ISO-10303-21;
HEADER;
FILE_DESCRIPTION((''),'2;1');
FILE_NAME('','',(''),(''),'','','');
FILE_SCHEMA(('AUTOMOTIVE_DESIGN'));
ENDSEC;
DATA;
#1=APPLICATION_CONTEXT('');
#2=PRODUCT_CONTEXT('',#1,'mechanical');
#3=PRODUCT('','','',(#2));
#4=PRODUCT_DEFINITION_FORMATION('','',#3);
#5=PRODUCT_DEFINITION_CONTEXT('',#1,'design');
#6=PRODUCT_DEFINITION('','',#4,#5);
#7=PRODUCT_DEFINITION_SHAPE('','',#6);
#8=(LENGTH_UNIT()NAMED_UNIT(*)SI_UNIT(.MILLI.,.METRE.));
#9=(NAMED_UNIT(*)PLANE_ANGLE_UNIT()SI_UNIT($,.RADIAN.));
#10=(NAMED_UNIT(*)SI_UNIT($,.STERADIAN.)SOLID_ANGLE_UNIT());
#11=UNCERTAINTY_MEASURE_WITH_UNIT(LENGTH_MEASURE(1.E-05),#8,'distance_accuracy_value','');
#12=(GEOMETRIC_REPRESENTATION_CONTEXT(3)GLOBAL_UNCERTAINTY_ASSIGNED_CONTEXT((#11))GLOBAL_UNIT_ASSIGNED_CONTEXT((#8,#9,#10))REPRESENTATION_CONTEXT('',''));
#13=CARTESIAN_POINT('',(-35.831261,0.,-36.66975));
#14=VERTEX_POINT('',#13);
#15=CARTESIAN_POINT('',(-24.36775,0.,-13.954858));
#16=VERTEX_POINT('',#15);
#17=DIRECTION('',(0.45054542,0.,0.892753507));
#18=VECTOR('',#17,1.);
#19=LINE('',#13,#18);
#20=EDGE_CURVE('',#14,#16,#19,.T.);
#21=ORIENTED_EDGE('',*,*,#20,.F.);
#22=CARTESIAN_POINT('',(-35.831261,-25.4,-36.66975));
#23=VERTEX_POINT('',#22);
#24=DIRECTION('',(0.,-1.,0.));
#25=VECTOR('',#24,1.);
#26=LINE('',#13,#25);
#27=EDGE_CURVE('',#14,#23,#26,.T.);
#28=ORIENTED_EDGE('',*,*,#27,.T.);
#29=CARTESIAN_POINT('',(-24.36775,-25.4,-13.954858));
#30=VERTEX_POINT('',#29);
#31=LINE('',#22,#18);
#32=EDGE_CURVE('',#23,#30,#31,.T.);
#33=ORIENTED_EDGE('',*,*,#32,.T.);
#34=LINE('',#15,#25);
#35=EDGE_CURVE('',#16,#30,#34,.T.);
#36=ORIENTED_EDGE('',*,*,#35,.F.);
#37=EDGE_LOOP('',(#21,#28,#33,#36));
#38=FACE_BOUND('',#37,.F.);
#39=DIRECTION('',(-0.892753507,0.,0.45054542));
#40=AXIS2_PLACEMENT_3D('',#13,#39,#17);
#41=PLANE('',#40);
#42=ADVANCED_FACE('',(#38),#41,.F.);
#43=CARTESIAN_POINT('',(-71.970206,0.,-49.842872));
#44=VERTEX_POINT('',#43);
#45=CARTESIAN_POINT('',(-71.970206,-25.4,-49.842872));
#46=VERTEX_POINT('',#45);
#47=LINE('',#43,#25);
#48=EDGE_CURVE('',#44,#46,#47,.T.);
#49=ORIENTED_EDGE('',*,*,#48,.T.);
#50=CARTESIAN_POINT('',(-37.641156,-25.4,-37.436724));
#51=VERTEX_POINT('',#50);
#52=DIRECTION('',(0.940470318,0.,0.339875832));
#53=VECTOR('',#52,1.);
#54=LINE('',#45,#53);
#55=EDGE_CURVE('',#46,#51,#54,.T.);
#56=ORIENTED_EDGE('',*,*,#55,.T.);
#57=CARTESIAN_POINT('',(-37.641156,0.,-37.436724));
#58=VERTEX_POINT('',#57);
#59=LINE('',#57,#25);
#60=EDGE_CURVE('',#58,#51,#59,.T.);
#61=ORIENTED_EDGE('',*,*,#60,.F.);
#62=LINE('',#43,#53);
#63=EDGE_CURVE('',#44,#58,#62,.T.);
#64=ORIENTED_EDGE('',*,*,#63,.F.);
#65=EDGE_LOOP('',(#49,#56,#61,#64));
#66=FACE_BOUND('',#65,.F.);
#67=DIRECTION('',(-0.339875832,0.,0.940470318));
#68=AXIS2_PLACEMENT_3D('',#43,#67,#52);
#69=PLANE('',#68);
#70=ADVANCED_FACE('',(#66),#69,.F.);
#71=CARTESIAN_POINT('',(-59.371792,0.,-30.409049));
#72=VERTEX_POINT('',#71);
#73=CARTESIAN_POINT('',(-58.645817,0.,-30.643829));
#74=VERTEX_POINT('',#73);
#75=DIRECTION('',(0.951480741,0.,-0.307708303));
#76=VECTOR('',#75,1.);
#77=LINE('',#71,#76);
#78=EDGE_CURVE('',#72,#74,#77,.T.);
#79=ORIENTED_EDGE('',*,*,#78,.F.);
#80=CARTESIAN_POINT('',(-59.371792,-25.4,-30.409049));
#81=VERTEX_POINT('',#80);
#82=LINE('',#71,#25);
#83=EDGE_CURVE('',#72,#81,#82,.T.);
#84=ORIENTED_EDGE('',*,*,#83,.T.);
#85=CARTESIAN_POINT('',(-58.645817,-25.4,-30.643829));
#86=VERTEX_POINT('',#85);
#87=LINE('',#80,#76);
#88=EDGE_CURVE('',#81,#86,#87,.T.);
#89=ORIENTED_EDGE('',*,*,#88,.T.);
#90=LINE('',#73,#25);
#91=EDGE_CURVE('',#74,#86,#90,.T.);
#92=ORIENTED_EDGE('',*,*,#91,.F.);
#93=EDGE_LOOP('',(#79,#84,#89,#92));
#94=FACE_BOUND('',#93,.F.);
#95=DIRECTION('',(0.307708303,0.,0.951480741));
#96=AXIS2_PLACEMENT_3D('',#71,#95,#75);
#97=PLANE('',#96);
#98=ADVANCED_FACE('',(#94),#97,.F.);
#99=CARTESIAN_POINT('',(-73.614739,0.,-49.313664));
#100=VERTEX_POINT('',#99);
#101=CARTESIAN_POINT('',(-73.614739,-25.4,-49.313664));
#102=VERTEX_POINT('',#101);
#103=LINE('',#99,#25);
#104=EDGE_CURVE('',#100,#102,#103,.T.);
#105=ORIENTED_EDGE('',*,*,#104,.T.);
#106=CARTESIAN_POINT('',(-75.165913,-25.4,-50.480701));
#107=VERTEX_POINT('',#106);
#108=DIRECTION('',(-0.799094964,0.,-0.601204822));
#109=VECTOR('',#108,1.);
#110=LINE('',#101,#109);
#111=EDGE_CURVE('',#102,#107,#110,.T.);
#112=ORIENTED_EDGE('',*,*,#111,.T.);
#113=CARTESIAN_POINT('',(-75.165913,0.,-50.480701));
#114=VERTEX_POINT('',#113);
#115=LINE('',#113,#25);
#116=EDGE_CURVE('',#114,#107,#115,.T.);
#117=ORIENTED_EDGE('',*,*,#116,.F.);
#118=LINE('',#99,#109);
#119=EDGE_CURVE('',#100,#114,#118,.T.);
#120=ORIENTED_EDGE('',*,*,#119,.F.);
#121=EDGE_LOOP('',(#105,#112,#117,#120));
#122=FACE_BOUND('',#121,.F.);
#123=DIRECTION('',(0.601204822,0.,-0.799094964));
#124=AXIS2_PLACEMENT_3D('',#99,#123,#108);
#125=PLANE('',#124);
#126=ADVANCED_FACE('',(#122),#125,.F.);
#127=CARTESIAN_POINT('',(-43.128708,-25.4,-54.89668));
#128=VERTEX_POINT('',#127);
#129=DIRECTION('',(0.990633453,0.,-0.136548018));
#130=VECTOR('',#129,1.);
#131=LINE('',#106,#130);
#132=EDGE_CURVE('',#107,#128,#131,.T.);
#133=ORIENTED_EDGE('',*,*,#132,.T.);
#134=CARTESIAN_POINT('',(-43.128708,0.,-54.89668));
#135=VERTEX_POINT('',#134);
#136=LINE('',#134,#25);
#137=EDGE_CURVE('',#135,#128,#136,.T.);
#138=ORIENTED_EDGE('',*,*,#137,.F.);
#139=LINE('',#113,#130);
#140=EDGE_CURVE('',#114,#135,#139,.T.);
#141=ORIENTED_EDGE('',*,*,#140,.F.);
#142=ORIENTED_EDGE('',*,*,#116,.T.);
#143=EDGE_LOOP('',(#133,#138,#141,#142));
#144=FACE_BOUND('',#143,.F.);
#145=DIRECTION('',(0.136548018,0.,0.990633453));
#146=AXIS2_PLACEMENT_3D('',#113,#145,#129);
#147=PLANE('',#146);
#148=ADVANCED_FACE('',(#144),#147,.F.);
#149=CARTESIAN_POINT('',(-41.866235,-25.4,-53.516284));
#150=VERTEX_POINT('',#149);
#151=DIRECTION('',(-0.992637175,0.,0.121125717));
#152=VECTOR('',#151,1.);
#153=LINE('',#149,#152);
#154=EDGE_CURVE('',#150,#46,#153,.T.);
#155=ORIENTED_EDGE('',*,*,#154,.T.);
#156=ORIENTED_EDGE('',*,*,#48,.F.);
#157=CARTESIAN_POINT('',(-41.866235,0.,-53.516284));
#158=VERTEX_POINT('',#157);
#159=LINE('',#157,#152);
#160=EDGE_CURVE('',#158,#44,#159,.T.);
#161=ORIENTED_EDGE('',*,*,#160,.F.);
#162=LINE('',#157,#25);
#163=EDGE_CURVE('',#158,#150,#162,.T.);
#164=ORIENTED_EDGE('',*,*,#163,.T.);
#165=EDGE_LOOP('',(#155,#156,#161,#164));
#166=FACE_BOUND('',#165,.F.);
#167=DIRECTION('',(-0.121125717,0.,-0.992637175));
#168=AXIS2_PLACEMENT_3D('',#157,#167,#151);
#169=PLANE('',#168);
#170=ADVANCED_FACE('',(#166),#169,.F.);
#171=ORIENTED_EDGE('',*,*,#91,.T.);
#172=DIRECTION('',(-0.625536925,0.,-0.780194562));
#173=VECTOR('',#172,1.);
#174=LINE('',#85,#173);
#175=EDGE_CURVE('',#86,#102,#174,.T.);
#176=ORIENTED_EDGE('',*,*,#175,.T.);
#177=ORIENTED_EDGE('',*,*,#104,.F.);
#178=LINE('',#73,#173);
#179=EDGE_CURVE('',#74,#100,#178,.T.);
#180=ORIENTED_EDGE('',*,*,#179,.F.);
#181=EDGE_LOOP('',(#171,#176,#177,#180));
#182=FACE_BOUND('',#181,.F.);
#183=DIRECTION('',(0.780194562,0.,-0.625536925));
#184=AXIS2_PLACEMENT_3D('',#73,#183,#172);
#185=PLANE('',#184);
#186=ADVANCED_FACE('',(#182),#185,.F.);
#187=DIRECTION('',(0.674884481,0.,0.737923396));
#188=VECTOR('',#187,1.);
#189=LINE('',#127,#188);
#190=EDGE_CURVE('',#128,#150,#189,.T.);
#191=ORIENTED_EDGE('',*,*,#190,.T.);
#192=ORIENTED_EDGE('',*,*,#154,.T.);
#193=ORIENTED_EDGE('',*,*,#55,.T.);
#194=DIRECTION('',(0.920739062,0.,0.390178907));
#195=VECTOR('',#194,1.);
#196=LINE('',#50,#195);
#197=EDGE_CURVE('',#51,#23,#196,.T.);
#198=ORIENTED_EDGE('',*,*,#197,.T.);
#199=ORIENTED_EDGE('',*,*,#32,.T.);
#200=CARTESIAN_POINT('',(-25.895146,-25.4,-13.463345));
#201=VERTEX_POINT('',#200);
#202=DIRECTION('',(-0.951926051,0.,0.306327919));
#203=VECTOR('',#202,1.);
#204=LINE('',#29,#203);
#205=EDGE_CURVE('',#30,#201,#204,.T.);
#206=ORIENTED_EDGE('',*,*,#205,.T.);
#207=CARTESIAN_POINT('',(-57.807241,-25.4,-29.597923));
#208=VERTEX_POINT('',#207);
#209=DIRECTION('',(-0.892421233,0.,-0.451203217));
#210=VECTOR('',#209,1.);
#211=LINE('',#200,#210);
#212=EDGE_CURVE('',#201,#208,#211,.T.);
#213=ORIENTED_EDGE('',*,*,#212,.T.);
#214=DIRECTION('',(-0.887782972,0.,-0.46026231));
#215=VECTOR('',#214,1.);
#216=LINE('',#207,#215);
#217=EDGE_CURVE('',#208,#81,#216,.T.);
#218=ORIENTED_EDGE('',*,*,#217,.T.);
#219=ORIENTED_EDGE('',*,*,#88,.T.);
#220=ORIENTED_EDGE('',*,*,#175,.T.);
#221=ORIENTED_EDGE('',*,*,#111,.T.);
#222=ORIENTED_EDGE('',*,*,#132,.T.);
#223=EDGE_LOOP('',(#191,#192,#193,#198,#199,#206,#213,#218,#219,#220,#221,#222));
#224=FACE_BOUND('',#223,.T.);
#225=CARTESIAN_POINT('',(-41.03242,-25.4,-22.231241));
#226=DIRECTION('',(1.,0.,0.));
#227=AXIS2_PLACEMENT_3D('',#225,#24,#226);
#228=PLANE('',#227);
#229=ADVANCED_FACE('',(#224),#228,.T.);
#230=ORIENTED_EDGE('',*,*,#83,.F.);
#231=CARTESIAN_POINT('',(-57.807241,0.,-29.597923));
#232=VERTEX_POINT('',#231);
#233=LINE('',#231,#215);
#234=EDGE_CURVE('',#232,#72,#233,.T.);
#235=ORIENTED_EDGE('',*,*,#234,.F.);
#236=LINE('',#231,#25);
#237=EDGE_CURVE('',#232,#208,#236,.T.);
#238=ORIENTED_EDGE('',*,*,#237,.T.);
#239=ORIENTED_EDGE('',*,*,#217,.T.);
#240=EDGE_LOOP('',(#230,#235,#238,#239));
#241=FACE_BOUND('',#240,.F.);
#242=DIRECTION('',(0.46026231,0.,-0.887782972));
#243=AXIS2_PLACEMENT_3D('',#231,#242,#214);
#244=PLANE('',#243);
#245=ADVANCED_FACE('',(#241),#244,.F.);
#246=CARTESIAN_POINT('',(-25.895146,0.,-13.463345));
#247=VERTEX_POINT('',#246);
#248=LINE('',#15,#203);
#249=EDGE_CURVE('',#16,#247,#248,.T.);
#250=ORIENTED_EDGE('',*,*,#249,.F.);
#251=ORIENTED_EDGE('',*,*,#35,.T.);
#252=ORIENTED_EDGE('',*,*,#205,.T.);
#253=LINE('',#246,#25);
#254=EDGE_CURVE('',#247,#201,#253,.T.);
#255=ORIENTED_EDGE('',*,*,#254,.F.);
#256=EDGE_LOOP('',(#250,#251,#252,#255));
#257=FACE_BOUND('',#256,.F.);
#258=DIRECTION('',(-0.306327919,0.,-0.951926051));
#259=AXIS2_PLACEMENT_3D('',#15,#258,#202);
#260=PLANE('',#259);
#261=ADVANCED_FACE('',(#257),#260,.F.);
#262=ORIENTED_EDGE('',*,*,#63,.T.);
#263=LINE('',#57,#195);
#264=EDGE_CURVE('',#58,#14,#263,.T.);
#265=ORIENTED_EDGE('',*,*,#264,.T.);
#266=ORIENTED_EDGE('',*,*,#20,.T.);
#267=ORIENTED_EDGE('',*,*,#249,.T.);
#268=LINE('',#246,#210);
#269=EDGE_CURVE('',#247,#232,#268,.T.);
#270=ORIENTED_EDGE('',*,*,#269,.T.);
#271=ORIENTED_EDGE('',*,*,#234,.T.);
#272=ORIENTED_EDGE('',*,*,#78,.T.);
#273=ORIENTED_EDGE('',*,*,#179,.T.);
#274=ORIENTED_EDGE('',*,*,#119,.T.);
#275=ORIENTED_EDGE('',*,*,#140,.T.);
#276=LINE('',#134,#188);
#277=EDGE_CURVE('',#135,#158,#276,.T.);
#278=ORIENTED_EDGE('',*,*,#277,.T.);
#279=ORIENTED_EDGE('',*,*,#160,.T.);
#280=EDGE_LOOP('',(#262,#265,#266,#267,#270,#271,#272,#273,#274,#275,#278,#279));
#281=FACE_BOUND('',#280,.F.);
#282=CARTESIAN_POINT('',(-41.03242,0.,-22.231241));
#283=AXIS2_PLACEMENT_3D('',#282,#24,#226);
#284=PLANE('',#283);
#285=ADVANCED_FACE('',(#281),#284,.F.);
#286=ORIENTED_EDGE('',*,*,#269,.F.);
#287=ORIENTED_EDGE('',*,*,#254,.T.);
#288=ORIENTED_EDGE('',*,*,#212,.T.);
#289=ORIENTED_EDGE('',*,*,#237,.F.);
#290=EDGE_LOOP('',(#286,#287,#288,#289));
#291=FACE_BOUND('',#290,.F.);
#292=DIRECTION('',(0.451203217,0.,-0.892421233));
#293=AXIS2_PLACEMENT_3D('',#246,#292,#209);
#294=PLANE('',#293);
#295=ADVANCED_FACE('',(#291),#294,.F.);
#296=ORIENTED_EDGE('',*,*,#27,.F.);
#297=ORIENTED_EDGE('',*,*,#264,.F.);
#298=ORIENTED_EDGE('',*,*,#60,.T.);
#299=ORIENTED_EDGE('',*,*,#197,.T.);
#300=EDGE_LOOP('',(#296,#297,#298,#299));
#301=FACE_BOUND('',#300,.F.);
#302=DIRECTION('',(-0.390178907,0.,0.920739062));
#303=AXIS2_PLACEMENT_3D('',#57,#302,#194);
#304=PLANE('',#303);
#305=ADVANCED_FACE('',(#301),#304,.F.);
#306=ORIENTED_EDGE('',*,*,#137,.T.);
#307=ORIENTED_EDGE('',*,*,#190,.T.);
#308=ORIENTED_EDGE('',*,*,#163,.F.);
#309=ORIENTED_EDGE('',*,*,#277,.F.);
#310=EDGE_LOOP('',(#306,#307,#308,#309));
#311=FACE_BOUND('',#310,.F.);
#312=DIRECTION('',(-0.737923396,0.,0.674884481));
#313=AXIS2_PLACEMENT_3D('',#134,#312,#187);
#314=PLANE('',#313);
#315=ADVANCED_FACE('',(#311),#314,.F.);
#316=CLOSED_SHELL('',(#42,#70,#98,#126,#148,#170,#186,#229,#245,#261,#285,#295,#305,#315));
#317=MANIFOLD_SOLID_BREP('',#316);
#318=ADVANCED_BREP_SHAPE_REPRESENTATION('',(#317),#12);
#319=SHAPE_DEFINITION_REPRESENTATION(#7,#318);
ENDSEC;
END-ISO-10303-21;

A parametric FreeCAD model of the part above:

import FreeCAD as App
import Part
import Sketcher
Q = App.Units.Quantity

doc = App.newDocument("Part")
params = doc.addObject("Spreadsheet::Sheet", "Params")
for row, (alias, value) in enumerate([
    ("pad1_length", "1 in"),
], start=1):
    params.set(f"A{row}", alias)
    params.set(f"B{row}", "=" + value)
    params.setAlias(f"B{row}", alias)

body = doc.addObject("PartDesign::Body", "Body")

# Sketch on XZ plane
sketch1 = body.newObject("Sketcher::SketchObject", "Sketch")
sketch1.AttachmentSupport = (doc.getObject("XZ_Plane"), [""])
sketch1.MapMode = "FlatFace"
sketch1.addGeometry([
    Part.LineSegment(App.Vector(-25.9, -13.5, 0), App.Vector(-57.8, -29.6, 0)),  # 0
    Part.LineSegment(App.Vector(-57.8, -29.6, 0), App.Vector(-59.4, -30.4, 0)),  # 1
    Part.LineSegment(App.Vector(-59.4, -30.4, 0), App.Vector(-58.6, -30.6, 0)),  # 2
    Part.LineSegment(App.Vector(-58.6, -30.6, 0), App.Vector(-73.6, -49.3, 0)),  # 3
    Part.LineSegment(App.Vector(-73.6, -49.3, 0), App.Vector(-75.2, -50.5, 0)),  # 4
    Part.LineSegment(App.Vector(-75.2, -50.5, 0), App.Vector(-43.1, -54.9, 0)),  # 5
    Part.LineSegment(App.Vector(-43.1, -54.9, 0), App.Vector(-41.9, -53.5, 0)),  # 6
    Part.LineSegment(App.Vector(-41.9, -53.5, 0), App.Vector(-72, -49.8, 0)),  # 7
    Part.LineSegment(App.Vector(-72, -49.8, 0), App.Vector(-37.6, -37.4, 0)),  # 8
    Part.LineSegment(App.Vector(-37.6, -37.4, 0), App.Vector(-35.8, -36.7, 0)),  # 9
    Part.LineSegment(App.Vector(-35.8, -36.7, 0), App.Vector(-24.4, -14, 0)),  # 10
    Part.LineSegment(App.Vector(-24.4, -14, 0), App.Vector(-25.9, -13.5, 0)),  # 11
], False)
sketch1.addConstraint([
    Sketcher.Constraint("Coincident", 0, 2, 1, 1),
    Sketcher.Constraint("Coincident", 1, 2, 2, 1),
    Sketcher.Constraint("Coincident", 2, 2, 3, 1),
    Sketcher.Constraint("Coincident", 3, 2, 4, 1),
    Sketcher.Constraint("Coincident", 4, 2, 5, 1),
    Sketcher.Constraint("Coincident", 5, 2, 6, 1),
    Sketcher.Constraint("Coincident", 6, 2, 7, 1),
    Sketcher.Constraint("Coincident", 7, 2, 8, 1),
    Sketcher.Constraint("Coincident", 8, 2, 9, 1),
    Sketcher.Constraint("Coincident", 9, 2, 10, 1),
    Sketcher.Constraint("Coincident", 10, 2, 11, 1),
    Sketcher.Constraint("Coincident", 11, 2, 0, 1),
    Sketcher.Constraint("DistanceY", 5, 2, 8, 2, Q("0.6873999 in")),
    Sketcher.Constraint("Distance", 8, 36.502002),
    Sketcher.Constraint("Distance", 9, 1.965698),
    Sketcher.Constraint("DistanceY", 4, 2, -1, 1, 50.480701),
    Sketcher.Constraint("DistanceX", 3, 2, 0, 2, 15.807498),
    Sketcher.Constraint("DistanceY", 8, 2, 0, 2, 7.838801),
    Sketcher.Constraint("Distance", 5, 32.340119),
    Sketcher.Constraint("Distance", 6, 1.87065),
    Sketcher.Constraint("Distance", 10, 25.443632),
    Sketcher.Constraint("DistanceX", 0, 2, -1, 1, 57.807241),
    Sketcher.Constraint("DistanceX", 1, 2, -1, 1, 59.371792),
    Sketcher.Constraint("DistanceY", 1, 2, -1, 1, 30.409049),
    Sketcher.Constraint("DistanceY", 2, 2, -1, 1, 30.643829),
    Sketcher.Constraint("DistanceX", 5, 2, -1, 1, 43.128708),
    Sketcher.Constraint("DistanceY", 5, 2, -1, 1, 54.89668),
    Sketcher.Constraint("DistanceY", 7, 2, -1, 1, 49.842872),
    Sketcher.Constraint("DistanceX", 9, 2, -1, 1, 35.831261),
    Sketcher.Constraint("DistanceY", 9, 2, -1, 1, 36.66975),
    Sketcher.Constraint("DistanceX", 10, 2, -1, 1, 24.36775),
    Sketcher.Constraint("DistanceX", 3, 2, 2, 2, 14.968922),
    Sketcher.Constraint("DistanceY", 3, 2, 0, 2, 19.715741),
    Sketcher.Constraint("DistanceX", 2, 2, 6, 2, 16.779582),
    Sketcher.Constraint("DistanceX", 8, 2, 11, 2, 11.746011),
    Sketcher.Constraint("DistanceY", 8, 2, 11, 2, 23.973378),
])
pad1 = body.newObject("PartDesign::Pad", "Pad")
pad1.Profile = sketch1
pad1.setExpression("Length", "Params.pad1_length")

doc.recompute()
